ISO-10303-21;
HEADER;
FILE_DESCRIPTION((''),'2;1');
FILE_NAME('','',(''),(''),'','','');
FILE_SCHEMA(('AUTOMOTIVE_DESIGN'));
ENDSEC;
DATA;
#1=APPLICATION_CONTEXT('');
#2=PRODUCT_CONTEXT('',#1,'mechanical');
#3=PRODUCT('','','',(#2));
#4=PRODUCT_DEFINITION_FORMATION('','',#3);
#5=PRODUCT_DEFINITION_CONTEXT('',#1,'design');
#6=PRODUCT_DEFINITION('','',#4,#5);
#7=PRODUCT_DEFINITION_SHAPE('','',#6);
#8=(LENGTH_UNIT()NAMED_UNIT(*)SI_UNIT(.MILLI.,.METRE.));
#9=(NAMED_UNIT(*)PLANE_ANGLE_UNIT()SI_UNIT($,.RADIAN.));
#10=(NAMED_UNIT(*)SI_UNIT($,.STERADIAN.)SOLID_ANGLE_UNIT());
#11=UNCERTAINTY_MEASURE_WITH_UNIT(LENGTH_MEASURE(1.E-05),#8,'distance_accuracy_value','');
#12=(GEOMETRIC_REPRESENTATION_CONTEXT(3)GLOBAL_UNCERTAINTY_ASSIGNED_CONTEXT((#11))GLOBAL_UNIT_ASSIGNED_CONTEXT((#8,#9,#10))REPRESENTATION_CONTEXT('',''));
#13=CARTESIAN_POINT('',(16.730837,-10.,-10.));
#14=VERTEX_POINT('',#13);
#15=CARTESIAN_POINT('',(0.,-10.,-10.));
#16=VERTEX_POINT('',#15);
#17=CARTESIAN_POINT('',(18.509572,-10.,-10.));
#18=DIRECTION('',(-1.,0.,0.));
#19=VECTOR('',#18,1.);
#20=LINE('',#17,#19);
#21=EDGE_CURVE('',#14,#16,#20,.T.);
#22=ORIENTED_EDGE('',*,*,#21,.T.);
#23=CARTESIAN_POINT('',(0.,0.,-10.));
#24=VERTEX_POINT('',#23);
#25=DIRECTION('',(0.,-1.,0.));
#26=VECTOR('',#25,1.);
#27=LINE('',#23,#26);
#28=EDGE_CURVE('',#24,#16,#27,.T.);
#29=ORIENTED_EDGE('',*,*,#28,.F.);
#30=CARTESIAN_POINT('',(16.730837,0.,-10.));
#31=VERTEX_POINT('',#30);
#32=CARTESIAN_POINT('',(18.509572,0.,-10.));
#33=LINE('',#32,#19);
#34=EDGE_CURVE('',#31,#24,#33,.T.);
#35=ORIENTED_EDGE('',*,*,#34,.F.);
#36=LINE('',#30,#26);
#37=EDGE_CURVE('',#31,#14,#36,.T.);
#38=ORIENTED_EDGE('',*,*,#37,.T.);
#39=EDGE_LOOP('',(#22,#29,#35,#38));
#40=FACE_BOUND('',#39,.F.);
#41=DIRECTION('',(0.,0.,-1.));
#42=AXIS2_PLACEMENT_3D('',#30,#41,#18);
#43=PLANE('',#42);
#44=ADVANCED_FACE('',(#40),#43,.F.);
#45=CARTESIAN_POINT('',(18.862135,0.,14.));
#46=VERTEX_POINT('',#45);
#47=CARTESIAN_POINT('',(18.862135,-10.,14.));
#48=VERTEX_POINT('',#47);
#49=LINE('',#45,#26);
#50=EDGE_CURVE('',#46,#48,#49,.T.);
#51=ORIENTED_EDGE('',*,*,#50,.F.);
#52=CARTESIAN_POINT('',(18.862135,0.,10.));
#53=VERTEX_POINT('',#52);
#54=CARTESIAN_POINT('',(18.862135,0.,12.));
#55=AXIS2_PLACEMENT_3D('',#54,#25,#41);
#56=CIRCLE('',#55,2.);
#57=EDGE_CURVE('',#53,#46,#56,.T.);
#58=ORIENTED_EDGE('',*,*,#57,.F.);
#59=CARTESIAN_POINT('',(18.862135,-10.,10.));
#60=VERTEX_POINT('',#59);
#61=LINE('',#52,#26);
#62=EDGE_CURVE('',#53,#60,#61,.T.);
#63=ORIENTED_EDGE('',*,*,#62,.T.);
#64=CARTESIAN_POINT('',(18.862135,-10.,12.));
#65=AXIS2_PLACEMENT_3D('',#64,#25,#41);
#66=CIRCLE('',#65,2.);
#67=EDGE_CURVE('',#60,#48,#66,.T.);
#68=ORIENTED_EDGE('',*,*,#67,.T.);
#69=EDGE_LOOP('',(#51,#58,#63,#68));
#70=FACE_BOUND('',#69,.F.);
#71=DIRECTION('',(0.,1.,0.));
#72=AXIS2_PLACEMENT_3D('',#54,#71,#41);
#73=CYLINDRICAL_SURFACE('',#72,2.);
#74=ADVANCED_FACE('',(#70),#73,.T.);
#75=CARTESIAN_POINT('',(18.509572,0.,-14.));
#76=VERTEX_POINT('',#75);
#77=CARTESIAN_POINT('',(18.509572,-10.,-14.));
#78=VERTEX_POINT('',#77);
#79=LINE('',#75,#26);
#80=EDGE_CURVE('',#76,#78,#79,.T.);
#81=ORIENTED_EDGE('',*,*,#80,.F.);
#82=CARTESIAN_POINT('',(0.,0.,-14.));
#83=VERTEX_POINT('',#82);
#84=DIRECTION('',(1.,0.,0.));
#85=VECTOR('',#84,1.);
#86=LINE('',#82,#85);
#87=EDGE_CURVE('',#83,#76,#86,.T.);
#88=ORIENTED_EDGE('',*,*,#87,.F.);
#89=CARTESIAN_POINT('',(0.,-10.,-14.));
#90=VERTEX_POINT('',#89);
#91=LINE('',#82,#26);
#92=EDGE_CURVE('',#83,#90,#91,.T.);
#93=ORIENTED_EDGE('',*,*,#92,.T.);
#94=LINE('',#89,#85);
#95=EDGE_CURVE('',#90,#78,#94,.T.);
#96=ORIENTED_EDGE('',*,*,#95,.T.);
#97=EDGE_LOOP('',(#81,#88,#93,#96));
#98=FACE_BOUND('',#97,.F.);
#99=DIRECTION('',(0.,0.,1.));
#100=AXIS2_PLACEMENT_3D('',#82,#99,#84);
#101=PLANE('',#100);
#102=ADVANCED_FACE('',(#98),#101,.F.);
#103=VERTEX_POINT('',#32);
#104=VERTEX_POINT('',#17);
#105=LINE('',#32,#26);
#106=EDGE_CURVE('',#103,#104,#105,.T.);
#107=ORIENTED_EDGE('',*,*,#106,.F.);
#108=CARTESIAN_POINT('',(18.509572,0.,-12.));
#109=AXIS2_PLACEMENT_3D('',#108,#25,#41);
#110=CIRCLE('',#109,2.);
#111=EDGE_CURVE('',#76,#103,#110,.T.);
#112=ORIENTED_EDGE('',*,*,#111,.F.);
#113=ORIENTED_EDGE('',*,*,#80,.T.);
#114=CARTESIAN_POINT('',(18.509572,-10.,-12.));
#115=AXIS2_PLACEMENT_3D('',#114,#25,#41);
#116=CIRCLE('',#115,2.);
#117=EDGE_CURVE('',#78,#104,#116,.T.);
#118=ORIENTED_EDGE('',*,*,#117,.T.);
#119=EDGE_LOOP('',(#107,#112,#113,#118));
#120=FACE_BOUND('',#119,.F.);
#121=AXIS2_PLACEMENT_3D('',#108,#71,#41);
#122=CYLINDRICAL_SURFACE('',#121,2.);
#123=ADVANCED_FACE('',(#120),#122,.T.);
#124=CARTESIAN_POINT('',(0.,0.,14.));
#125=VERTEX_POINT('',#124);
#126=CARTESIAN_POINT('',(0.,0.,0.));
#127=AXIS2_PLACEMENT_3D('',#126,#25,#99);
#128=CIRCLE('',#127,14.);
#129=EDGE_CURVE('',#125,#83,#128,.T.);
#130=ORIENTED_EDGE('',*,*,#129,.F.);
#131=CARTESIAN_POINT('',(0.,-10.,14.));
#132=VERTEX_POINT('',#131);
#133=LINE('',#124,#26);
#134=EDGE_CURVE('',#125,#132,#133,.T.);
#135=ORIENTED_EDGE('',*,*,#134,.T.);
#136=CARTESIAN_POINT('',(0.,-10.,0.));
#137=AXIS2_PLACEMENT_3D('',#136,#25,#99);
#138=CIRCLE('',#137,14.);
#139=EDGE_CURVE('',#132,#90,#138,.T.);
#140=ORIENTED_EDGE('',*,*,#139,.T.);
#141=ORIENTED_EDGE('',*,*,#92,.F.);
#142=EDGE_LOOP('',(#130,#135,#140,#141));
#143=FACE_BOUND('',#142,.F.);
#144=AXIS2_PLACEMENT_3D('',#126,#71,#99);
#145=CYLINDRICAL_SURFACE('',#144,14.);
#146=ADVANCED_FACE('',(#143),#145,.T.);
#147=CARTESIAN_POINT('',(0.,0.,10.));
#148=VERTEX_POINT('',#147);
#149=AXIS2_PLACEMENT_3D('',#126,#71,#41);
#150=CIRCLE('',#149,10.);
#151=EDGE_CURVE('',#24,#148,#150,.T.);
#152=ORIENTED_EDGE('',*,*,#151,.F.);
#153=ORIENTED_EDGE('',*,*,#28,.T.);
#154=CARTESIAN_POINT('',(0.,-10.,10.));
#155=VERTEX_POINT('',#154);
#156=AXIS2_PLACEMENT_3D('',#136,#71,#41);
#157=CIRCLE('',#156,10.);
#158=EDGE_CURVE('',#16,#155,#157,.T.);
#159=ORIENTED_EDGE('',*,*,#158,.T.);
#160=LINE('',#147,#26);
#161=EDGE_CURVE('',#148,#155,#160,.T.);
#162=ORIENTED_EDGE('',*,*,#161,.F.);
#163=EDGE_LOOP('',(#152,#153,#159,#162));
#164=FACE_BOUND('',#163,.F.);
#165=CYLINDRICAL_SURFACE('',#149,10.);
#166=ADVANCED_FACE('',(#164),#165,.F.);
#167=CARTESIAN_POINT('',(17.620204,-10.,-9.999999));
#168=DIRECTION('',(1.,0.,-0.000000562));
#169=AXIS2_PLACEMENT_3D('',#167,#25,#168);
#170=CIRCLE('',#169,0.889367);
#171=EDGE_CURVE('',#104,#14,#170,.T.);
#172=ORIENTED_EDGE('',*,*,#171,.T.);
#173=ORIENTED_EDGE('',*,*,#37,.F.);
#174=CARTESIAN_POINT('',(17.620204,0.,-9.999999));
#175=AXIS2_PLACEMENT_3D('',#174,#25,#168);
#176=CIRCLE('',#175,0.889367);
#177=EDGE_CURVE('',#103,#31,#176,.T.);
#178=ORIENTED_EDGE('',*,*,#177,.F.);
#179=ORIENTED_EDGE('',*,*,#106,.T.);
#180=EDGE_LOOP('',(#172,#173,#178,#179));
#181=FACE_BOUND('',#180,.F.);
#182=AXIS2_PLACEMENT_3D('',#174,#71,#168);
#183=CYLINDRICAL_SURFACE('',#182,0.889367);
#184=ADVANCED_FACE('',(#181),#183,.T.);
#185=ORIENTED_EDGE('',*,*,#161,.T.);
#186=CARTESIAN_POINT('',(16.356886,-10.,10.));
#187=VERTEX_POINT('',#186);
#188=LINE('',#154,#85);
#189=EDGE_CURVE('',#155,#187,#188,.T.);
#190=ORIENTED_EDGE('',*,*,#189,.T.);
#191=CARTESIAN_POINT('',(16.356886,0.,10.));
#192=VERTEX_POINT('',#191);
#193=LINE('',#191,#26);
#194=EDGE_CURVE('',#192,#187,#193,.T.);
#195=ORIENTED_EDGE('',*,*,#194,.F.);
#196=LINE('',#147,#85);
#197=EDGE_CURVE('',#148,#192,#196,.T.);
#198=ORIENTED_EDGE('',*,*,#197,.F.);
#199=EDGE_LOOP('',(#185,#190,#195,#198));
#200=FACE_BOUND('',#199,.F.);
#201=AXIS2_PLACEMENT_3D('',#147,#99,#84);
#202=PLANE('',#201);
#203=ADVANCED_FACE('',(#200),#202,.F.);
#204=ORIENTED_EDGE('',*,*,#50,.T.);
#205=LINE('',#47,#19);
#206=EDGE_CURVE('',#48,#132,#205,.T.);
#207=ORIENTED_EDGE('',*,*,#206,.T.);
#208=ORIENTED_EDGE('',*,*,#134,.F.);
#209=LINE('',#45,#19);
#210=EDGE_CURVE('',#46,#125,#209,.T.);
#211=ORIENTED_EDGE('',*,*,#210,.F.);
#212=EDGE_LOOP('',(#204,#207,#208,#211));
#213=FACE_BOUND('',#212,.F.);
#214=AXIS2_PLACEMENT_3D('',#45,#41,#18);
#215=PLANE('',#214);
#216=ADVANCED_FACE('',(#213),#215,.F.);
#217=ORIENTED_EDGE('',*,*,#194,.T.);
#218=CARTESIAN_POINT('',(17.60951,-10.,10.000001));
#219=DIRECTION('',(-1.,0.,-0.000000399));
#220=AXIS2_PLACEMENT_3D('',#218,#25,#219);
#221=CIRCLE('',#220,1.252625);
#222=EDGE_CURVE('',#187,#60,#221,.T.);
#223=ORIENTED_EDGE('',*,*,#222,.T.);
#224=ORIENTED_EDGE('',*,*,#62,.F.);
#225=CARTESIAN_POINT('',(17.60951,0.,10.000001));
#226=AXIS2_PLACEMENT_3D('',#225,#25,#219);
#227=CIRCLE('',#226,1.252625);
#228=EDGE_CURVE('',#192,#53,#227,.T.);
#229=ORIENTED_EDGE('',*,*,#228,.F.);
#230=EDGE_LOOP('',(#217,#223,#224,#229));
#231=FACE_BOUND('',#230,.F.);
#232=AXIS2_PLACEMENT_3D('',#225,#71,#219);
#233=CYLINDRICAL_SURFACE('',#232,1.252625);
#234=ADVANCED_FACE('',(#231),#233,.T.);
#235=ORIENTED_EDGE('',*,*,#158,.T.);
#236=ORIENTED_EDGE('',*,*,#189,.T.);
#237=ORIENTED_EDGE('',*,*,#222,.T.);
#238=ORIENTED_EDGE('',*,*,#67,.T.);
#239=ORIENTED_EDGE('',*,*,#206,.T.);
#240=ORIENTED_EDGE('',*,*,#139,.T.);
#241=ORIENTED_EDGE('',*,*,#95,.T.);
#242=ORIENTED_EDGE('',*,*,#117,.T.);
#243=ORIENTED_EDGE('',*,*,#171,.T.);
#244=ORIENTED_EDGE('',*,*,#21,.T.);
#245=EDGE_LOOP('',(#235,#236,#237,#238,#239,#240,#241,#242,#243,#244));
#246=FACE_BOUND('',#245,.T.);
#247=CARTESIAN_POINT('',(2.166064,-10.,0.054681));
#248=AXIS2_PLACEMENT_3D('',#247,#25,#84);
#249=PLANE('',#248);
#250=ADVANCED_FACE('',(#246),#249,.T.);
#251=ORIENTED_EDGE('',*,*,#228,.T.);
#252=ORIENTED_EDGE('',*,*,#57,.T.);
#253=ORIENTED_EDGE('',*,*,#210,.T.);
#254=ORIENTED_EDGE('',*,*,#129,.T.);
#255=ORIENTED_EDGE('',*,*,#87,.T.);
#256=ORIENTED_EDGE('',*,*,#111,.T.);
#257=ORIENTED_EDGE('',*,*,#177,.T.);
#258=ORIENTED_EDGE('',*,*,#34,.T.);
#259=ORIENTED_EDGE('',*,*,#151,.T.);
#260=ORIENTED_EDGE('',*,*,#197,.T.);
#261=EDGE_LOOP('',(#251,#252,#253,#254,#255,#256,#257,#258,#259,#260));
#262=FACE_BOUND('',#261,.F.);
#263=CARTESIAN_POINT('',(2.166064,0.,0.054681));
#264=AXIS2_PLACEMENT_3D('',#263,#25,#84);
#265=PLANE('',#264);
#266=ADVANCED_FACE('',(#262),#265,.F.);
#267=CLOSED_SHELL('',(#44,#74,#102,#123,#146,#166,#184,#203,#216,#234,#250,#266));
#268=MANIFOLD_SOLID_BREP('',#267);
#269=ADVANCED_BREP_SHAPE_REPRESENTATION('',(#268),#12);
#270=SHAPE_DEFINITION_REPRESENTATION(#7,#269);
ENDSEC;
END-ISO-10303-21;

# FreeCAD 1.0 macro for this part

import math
import FreeCAD as App
import Part
import Sketcher
Q = App.Units.Quantity

doc = App.newDocument("Part")
body = doc.addObject("PartDesign::Body", "Body")

# Sketch on XZ plane
sketch1 = body.newObject("Sketcher::SketchObject", "Sketch")
sketch1.AttachmentSupport = (doc.getObject("XZ_Plane"), [""])
sketch1.MapMode = "FlatFace"
sketch1.addGeometry([
    Part.ArcOfCircle(Part.Circle(App.Vector(0, 0, 0), App.Vector(0, 0, 1), 10), math.radians(90), math.radians(270)),  # 0
    Part.LineSegment(App.Vector(0, 10, 0), App.Vector(16.356886, 10, 0)),  # 1
    Part.ArcOfCircle(Part.Circle(App.Vector(17.60951, 10.000001, 0), App.Vector(0, 0, 1), 1.252625), math.radians(-179.999977), math.radians(-0.000023)),  # 2
    Part.ArcOfCircle(Part.Circle(App.Vector(18.862135, 12, 0), App.Vector(0, 0, 1), 2), math.radians(-90), math.radians(90)),  # 3
    Part.LineSegment(App.Vector(18.862135, 14, 0), App.Vector(0, 14, 0)),  # 4
    Part.ArcOfCircle(Part.Circle(App.Vector(0, 0, 0), App.Vector(0, 0, 1), 14), math.radians(90), math.radians(270)),  # 5
    Part.LineSegment(App.Vector(0, -14, 0), App.Vector(18.509572, -14, 0)),  # 6
    Part.ArcOfCircle(Part.Circle(App.Vector(18.509572, -12, 0), App.Vector(0, 0, 1), 2), math.radians(-90), math.radians(90)),  # 7
    Part.ArcOfCircle(Part.Circle(App.Vector(17.620204, -9.999999, 0), App.Vector(0, 0, 1), 0.889367), math.radians(-0.000032), math.radians(180.000032)),  # 8
    Part.LineSegment(App.Vector(16.730837, -10, 0), App.Vector(0, -10, 0)),  # 9
], False)
sketch1.addConstraint([
    Sketcher.Constraint("Tangent", 0, 1, 1, 1),
    Sketcher.Constraint("Coincident", 1, 2, 2, 1),
    Sketcher.Constraint("Coincident", 2, 2, 3, 1),
    Sketcher.Constraint("Tangent", 3, 2, 4, 1),
    Sketcher.Constraint("Tangent", 4, 2, 5, 1),
    Sketcher.Constraint("Tangent", 5, 2, 6, 1),
    Sketcher.Constraint("Tangent", 6, 2, 7, 1),
    Sketcher.Constraint("Coincident", 7, 2, 8, 1),
    Sketcher.Constraint("Coincident", 8, 2, 9, 1),
    Sketcher.Constraint("Tangent", 9, 2, 0, 2),
    Sketcher.Constraint("Horizontal", 1),
    Sketcher.Constraint("Horizontal", 4),
    Sketcher.Constraint("Horizontal", 6),
    Sketcher.Constraint("Horizontal", 9),
    Sketcher.Constraint("Coincident", 0, 3, -1, 1),
    Sketcher.Constraint("Coincident", 5, 3, -1, 1),
    Sketcher.Constraint("Equal", 3, 7),
    Sketcher.Constraint("Horizontal", 2, 3, 0, 1),
    Sketcher.Constraint("Horizontal", 1, 2, 2, 2),
    Sketcher.Constraint("Horizontal", 8, 3, 7, 2),
    Sketcher.Constraint("Vertical", 3, 3, 2, 2),
    Sketcher.Constraint("Vertical", 6, 2, 7, 2),
    Sketcher.Constraint("Radius", 0, Q("10 mm")),
    Sketcher.Constraint("Radius", 3, Q("2 mm")),
    Sketcher.Constraint("Radius", 2, Q("1.252625 mm")),
    Sketcher.Constraint("Radius", 8, Q("0.889367 mm")),
    Sketcher.Constraint("DistanceX", 6, 1, 6, 2, Q("18.509572 mm")),
    Sketcher.Constraint("DistanceX", 1, 1, 1, 2, Q("16.356886 mm")),
])
pad1 = body.newObject("PartDesign::Pad", "Pad")
pad1.Profile = sketch1
pad1.Length = 10

doc.recompute()
